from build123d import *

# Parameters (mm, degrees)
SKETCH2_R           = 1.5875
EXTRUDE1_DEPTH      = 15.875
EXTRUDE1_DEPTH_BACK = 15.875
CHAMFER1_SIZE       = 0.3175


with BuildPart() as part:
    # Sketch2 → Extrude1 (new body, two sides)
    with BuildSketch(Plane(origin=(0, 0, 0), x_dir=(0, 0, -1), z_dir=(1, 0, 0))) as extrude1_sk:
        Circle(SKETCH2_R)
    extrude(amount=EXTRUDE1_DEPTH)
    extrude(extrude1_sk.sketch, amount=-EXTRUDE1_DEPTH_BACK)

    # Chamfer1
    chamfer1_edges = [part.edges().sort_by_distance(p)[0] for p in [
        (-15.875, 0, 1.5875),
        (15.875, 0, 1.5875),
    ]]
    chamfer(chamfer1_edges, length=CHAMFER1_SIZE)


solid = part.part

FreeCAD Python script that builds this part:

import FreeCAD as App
import Part
import Sketcher
from FreeCAD import Vector
Q = App.Units.Quantity


def edges_at(feature, points):
    """Names of the edges that pass closest to the given points."""
    edges = feature.Shape.Edges
    near = lambda p: min(range(len(edges)), key=lambda i: edges[i].distToShape(Part.Vertex(*p))[0])
    return sorted({f"Edge{near(p) + 1}" for p in points})

doc = App.newDocument("Part")
body = doc.addObject("PartDesign::Body", "Body")

# Sketch on YZ plane
sketch1 = doc.addObject("Sketcher::SketchObject", "Sketch")
body.addObject(sketch1)
sketch1.AttachmentSupport = (doc.YZ_Plane, [""])
sketch1.MapMode = "FlatFace"
sketch1.addGeometry(Part.Circle(Vector(0, 0, 0), Vector(0, 0, 1), 1.6), False)
sketch1.addConstraint([
    Sketcher.Constraint("Coincident", 0, 3, -1, 1),
    Sketcher.Constraint("Diameter", 0, Q("0.125 in")),
])
pad1 = doc.addObject("PartDesign::Pad", "Pad")
body.addObject(pad1)
pad1.Profile = sketch1
pad1.Type = "TwoLengths"
pad1.Length = Q("0.625 in")
pad1.Length2 = Q("0.625 in")
doc.recompute()

chamfer = doc.addObject("PartDesign::Chamfer", "Chamfer")
body.addObject(chamfer)
chamfer.Base = (pad1, edges_at(pad1, [(-15.875, 0, 1.587), (15.875, 0, 1.587)]))
chamfer.Size = Q("0.0125 in")

doc.recompute()
